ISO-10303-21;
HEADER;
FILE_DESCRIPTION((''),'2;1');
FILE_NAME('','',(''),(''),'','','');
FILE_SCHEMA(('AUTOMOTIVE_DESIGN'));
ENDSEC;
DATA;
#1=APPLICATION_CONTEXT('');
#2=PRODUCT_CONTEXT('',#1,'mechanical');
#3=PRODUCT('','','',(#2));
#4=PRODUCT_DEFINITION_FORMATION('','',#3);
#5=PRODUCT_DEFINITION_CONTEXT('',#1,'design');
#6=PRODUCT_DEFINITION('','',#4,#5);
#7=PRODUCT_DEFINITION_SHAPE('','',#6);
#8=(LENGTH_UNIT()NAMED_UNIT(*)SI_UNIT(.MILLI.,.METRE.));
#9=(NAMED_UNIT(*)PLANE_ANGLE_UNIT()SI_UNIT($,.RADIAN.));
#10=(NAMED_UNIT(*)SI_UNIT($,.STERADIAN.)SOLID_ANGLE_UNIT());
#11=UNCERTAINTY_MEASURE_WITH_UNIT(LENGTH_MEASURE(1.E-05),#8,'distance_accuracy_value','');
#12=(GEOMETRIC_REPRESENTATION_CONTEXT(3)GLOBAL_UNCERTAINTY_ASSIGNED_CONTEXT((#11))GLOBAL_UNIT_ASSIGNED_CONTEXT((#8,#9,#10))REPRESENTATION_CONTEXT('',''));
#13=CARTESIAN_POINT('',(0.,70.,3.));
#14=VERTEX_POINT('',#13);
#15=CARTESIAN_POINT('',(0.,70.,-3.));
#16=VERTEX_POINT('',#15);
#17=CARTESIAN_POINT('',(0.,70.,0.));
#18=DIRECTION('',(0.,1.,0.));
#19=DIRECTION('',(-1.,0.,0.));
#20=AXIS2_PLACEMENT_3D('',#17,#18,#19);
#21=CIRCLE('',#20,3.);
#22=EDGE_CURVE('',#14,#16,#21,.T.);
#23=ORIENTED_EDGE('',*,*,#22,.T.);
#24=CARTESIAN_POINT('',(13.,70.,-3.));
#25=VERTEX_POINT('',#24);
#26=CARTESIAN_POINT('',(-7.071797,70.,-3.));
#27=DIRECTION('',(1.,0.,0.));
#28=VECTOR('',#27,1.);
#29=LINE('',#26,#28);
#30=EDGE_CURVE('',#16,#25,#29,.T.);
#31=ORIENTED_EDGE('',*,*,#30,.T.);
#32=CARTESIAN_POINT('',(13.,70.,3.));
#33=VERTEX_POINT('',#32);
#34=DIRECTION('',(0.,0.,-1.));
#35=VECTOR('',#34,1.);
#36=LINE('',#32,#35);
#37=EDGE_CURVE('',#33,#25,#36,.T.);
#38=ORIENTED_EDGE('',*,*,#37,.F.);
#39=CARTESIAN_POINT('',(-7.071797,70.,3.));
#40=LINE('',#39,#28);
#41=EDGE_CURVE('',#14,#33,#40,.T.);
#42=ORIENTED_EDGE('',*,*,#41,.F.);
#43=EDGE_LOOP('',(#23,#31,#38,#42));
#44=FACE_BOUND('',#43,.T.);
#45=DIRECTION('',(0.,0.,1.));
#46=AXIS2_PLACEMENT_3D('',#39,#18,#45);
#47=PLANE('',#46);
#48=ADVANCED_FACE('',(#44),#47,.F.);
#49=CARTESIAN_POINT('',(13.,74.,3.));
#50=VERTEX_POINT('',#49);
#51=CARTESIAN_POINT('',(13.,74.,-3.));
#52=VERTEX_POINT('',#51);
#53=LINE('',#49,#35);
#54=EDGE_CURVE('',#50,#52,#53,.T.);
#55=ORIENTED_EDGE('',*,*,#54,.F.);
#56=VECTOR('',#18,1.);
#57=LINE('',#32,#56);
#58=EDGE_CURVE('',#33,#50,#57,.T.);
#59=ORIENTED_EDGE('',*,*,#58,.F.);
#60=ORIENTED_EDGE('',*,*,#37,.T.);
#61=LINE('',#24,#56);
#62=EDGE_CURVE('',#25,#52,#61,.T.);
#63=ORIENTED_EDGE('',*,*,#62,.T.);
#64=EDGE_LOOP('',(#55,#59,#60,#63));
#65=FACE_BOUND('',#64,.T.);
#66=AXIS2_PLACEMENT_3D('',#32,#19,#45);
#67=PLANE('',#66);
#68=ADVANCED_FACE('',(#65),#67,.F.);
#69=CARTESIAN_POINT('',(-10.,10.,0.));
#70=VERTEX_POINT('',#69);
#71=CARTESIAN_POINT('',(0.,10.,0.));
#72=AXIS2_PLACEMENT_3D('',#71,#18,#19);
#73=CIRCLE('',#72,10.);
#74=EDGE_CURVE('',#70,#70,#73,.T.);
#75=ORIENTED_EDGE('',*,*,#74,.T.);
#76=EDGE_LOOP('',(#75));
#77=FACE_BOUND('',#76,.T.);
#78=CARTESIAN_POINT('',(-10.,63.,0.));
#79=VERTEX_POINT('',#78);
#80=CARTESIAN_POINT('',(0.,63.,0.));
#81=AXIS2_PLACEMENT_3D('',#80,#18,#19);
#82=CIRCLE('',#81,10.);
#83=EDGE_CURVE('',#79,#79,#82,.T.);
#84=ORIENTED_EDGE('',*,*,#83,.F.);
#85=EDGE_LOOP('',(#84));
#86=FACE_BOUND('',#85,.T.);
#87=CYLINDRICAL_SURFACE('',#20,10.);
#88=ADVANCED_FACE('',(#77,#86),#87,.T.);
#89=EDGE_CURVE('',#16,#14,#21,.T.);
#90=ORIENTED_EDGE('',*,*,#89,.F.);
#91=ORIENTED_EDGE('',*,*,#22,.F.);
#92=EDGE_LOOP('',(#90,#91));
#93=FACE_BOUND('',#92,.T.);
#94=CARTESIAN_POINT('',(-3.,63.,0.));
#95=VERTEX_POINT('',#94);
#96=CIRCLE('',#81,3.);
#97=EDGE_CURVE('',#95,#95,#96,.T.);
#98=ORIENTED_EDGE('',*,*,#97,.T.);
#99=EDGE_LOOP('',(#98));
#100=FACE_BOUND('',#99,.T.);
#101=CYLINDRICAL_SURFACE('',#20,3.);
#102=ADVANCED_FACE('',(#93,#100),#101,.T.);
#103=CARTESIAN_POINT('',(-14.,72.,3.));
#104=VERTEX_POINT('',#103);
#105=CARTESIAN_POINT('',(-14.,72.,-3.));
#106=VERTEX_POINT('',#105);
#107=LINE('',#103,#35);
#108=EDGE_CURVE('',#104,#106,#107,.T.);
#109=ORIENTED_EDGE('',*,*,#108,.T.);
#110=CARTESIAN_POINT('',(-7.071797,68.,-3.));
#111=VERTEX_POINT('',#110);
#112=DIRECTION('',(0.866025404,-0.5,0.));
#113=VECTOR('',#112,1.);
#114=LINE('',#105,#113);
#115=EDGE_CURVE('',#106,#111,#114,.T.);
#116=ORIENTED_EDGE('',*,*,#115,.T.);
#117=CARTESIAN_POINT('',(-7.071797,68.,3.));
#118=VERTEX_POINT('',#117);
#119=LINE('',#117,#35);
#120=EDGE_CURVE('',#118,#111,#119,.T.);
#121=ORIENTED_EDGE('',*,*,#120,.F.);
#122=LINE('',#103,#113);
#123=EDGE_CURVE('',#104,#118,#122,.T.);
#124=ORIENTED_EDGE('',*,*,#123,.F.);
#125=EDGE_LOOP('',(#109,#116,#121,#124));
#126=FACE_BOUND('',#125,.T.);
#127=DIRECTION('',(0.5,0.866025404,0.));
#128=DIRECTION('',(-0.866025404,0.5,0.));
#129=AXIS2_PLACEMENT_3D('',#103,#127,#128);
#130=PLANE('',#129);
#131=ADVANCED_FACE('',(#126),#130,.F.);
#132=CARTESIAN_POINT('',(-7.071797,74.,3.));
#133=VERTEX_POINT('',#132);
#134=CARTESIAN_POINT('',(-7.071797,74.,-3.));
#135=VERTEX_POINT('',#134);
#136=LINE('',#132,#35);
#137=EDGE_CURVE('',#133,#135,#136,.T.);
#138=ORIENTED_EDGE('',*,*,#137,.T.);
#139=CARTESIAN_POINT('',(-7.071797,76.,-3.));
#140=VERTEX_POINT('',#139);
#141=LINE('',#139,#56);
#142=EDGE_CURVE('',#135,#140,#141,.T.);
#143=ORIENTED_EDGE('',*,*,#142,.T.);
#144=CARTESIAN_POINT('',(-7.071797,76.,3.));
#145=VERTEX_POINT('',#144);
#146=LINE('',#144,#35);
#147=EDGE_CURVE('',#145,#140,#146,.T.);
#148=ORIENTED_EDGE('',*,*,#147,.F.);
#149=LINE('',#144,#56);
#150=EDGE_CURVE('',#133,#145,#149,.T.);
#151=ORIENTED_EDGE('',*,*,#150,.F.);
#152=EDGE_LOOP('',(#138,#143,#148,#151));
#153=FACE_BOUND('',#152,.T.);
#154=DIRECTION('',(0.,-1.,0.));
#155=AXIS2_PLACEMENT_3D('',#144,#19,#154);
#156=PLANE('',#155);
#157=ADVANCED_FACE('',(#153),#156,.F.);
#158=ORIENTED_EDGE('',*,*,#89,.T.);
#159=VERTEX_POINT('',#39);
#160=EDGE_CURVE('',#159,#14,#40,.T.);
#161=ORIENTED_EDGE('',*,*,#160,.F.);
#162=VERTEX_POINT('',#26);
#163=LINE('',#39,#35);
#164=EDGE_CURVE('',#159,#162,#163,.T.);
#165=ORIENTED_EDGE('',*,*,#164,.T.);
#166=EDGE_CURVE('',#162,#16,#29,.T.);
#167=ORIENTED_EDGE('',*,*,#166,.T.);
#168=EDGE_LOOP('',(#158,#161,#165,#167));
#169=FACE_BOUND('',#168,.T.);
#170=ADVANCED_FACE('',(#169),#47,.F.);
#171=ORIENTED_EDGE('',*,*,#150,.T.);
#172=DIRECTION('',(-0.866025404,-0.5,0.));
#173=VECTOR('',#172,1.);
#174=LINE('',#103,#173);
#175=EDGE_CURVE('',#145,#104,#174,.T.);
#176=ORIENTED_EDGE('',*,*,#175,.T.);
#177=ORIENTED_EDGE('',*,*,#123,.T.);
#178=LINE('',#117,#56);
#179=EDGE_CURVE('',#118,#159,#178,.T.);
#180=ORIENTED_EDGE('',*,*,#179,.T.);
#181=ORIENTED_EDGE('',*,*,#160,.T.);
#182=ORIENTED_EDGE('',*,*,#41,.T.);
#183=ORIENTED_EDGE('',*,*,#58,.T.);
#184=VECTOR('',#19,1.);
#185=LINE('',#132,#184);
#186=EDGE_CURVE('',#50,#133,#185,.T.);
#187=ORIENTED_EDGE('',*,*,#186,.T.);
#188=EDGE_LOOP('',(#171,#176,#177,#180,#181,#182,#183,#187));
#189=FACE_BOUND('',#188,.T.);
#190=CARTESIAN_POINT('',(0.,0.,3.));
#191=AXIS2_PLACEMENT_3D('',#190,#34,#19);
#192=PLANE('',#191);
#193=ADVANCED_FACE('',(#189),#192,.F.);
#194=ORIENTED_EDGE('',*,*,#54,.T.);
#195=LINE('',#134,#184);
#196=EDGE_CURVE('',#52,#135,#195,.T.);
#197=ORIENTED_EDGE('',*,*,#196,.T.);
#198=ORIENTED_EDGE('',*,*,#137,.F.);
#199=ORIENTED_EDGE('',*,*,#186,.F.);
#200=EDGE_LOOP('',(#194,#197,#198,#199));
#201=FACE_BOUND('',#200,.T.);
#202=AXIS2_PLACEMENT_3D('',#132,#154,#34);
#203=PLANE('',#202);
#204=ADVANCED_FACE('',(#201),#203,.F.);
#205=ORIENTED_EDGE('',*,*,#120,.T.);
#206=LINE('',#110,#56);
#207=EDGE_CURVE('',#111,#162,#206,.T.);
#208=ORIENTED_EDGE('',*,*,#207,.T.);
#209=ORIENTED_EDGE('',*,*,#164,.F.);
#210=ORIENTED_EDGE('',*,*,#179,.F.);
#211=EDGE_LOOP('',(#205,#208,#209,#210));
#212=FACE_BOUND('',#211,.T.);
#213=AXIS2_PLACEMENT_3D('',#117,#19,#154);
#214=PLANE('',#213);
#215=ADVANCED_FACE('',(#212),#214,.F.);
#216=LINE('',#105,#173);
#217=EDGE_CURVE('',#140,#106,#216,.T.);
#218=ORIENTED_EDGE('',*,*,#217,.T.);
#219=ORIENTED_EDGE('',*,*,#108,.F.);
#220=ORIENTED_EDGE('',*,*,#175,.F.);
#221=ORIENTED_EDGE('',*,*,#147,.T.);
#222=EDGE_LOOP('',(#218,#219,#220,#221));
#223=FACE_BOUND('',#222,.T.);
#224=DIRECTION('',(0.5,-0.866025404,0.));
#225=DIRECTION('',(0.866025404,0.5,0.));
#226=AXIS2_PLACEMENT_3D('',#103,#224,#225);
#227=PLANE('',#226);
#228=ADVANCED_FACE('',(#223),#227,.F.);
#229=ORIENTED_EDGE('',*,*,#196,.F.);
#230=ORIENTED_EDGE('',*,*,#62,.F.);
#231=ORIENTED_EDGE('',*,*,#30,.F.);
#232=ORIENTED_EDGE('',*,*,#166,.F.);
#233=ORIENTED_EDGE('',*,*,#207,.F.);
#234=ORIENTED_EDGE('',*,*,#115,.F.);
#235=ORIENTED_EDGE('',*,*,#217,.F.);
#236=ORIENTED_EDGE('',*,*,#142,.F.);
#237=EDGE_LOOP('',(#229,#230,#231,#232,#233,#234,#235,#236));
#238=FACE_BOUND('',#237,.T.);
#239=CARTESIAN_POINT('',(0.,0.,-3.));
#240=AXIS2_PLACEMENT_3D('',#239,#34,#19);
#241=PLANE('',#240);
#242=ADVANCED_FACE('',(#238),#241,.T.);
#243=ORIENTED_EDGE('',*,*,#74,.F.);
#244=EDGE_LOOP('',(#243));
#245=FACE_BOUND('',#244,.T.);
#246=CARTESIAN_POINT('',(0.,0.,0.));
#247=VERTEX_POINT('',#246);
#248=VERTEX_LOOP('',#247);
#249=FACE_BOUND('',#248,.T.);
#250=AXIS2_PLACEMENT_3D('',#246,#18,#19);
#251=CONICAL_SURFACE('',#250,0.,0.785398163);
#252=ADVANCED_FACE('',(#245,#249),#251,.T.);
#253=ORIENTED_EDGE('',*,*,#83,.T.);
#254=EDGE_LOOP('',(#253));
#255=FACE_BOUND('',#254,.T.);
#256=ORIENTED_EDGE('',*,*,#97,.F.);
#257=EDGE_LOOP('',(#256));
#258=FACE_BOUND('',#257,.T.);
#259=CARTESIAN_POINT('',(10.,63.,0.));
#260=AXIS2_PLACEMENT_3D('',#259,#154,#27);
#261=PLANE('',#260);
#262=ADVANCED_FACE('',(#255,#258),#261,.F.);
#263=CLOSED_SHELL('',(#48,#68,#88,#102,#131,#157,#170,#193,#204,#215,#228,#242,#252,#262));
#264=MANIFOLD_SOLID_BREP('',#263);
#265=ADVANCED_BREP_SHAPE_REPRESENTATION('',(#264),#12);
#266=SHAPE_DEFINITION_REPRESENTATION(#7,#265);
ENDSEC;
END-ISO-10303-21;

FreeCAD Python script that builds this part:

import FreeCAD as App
import Part
import Sketcher
Q = App.Units.Quantity

doc = App.newDocument("Part")
params = doc.addObject("Spreadsheet::Sheet", "Params")
for row, (alias, value) in enumerate([
    ("sketch1_width", "7 mm"),
    ("sketch1_width2", "3 mm"),
    ("sketch1_height", "70 mm"),
    ("sketch1_height2", "53 mm"),
    ("revolution_angle", "360 deg"),
    ("sketch2_height", "2 mm"),
    ("sketch2_height2", "4 mm"),
    ("pad1_length", "6 mm"),
], start=1):
    params.set(f"A{row}", alias)
    params.set(f"B{row}", "=" + value)
    params.setAlias(f"B{row}", alias)

body = doc.addObject("PartDesign::Body", "Body")

# Sketch on XY plane
sketch1 = body.newObject("Sketcher::SketchObject", "Sketch")
sketch1.AttachmentSupport = (doc.getObject("XY_Plane"), [""])
sketch1.MapMode = "FlatFace"
sketch1.addGeometry([
    Part.LineSegment(App.Vector(0, 70, 0), App.Vector(0, 0, 0)),  # 0
    Part.LineSegment(App.Vector(0, 0, 0), App.Vector(10, 10, 0)),  # 1
    Part.LineSegment(App.Vector(10, 10, 0), App.Vector(10, 63, 0)),  # 2
    Part.LineSegment(App.Vector(10, 63, 0), App.Vector(3, 63, 0)),  # 3
    Part.LineSegment(App.Vector(3, 63, 0), App.Vector(3, 70, 0)),  # 4
    Part.LineSegment(App.Vector(3, 70, 0), App.Vector(0, 70, 0)),  # 5
], False)
sketch1.addConstraint([
    Sketcher.Constraint("Coincident", 0, 2, 1, 1),
    Sketcher.Constraint("Coincident", 1, 2, 2, 1),
    Sketcher.Constraint("Coincident", 2, 2, 3, 1),
    Sketcher.Constraint("Coincident", 3, 2, 4, 1),
    Sketcher.Constraint("Coincident", 4, 2, 5, 1),
    Sketcher.Constraint("Coincident", 5, 2, 0, 1),
    Sketcher.Constraint("Vertical", 0),
    Sketcher.Constraint("Vertical", 2),
    Sketcher.Constraint("Horizontal", 3),
    Sketcher.Constraint("Vertical", 4),
    Sketcher.Constraint("Horizontal", 5),
    Sketcher.Constraint("Coincident", 0, 2, -1, 1),
    Sketcher.Constraint("Equal", 3, 4),
    Sketcher.Constraint("DistanceX", 3, 2, 3, 1, 7.0),
    Sketcher.Constraint("DistanceX", 5, 2, 5, 1, 3.0),
    Sketcher.Constraint("DistanceY", 0, 2, 0, 1, 70.0),
    Sketcher.Constraint("DistanceY", 2, 1, 2, 2, 53.0),
])
sketch1.setExpression("Constraints[13]", "Params.sketch1_width")
sketch1.setExpression("Constraints[14]", "Params.sketch1_width2")
sketch1.setExpression("Constraints[15]", "Params.sketch1_height")
sketch1.setExpression("Constraints[16]", "Params.sketch1_height2")
revolution = body.newObject("PartDesign::Revolution", "Revolution")
revolution.Profile = sketch1
revolution.ReferenceAxis = (sketch1, ["V_Axis"])
revolution.setExpression("Angle", "Params.revolution_angle")

# Sketch on XY plane
sketch2 = body.newObject("Sketcher::SketchObject", "Sketch001")
sketch2.AttachmentSupport = (doc.getObject("XY_Plane"), [""])
sketch2.MapMode = "FlatFace"
sketch2.addGeometry([
    Part.LineSegment(App.Vector(-14, 72, 0), App.Vector(-7.1, 68, 0)),  # 0
    Part.LineSegment(App.Vector(-7.1, 68, 0), App.Vector(-7.1, 70, 0)),  # 1
    Part.LineSegment(App.Vector(-7.1, 70, 0), App.Vector(13, 70, 0)),  # 2
    Part.LineSegment(App.Vector(13, 70, 0), App.Vector(13, 74, 0)),  # 3
    Part.LineSegment(App.Vector(13, 74, 0), App.Vector(-7.1, 74, 0)),  # 4
    Part.LineSegment(App.Vector(-7.1, 74, 0), App.Vector(-7.1, 76, 0)),  # 5
    Part.LineSegment(App.Vector(-7.1, 76, 0), App.Vector(-14, 72, 0)),  # 6
], False)
sketch2.addConstraint([
    Sketcher.Constraint("Coincident", 0, 2, 1, 1),
    Sketcher.Constraint("Coincident", 1, 2, 2, 1),
    Sketcher.Constraint("Coincident", 2, 2, 3, 1),
    Sketcher.Constraint("Coincident", 3, 2, 4, 1),
    Sketcher.Constraint("Coincident", 4, 2, 5, 1),
    Sketcher.Constraint("Coincident", 5, 2, 6, 1),
    Sketcher.Constraint("Coincident", 6, 2, 0, 1),
    Sketcher.Constraint("Vertical", 1),
    Sketcher.Constraint("Horizontal", 2),
    Sketcher.Constraint("Vertical", 3),
    Sketcher.Constraint("Horizontal", 4),
    Sketcher.Constraint("Vertical", 5),
    Sketcher.Constraint("Vertical", 1, 2, 4, 2),
    Sketcher.Constraint("Equal", 1, 5),
    Sketcher.Constraint("Equal", 0, 6),
    Sketcher.Constraint("DistanceY", 1, 1, 1, 2, 2.0),
    Sketcher.Constraint("DistanceY", 3, 1, 3, 2, 4.0),
    Sketcher.Constraint("Angle", 0, Q("-30 deg")),
    Sketcher.Constraint("DistanceY", -1, 1, 0, 2, 68.0),
    Sketcher.Constraint("DistanceX", -1, 1, 2, 2, 13.0),
    Sketcher.Constraint("DistanceX", 6, 2, -1, 1, 14.0),
])
sketch2.setExpression("Constraints[15]", "Params.sketch2_height")
sketch2.setExpression("Constraints[16]", "Params.sketch2_height2")
pad1 = body.newObject("PartDesign::Pad", "Pad")
pad1.Profile = sketch2
pad1.setExpression("Length", "Params.pad1_length")
pad1.Midplane = True

doc.recompute()
